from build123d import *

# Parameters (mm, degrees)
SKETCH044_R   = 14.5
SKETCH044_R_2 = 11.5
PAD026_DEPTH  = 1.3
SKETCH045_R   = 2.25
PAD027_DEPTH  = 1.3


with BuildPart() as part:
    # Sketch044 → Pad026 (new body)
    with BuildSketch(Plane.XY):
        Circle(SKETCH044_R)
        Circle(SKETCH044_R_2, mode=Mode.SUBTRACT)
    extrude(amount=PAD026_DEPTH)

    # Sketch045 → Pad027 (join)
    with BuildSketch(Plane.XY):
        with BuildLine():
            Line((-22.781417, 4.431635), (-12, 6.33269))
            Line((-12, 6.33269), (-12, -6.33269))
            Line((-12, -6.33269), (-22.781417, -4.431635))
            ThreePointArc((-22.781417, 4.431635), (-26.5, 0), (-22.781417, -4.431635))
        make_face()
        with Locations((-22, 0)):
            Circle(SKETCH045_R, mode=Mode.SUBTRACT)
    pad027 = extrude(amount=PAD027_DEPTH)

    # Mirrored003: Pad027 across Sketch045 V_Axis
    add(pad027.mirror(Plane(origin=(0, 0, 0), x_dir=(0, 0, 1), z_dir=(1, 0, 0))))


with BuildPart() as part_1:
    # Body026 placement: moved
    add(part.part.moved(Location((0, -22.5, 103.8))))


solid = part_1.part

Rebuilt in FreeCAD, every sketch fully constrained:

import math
import FreeCAD as App
import Part
import Sketcher
from FreeCAD import Vector
Q = App.Units.Quantity

doc = App.newDocument("Part")
params = doc.addObject("Spreadsheet::Sheet", "Params")
for row, (alias, value) in enumerate([
    ("sketch1_diameter", "29 mm"),
    ("sketch1_diameter2", "23 mm"),
    ("pad1_length", "1.3 mm"),
    ("sketch2_diameter", "4.5 mm"),
    ("sketch2_radius", "4.5 mm"),
    ("pad2_length", "1.3 mm"),
], start=1):
    params.set(f"A{row}", alias)
    params.set(f"B{row}", "=" + value)
    params.setAlias(f"B{row}", alias)

body = doc.addObject("PartDesign::Body", "Body")

# Sketch on XY plane
sketch1 = doc.addObject("Sketcher::SketchObject", "Sketch")
body.addObject(sketch1)
sketch1.AttachmentSupport = (doc.XY_Plane, [""])
sketch1.MapMode = "FlatFace"
sketch1.addGeometry(Part.Circle(Vector(0, 0, 0), Vector(0, 0, 1), 14), False)
sketch1.addGeometry(Part.Circle(Vector(0, 0, 0), Vector(0, 0, 1), 12), False)
sketch1.addConstraint(Sketcher.Constraint("Coincident", 0, 3, -1, 1))
sketch1.addConstraint(Sketcher.Constraint("Coincident", 1, 3, -1, 1))
sketch1.addConstraint(Sketcher.Constraint("Diameter", 0, Q("29 mm")))
sketch1.addConstraint(Sketcher.Constraint("Diameter", 1, Q("23 mm")))
sketch1.setExpression("Constraints[2]", "Params.sketch1_diameter")
sketch1.setExpression("Constraints[3]", "Params.sketch1_diameter2")
pad1 = doc.addObject("PartDesign::Pad", "Pad")
body.addObject(pad1)
pad1.Profile = sketch1
pad1.setExpression("Length", "Params.pad1_length")

# Sketch on XY plane
sketch2 = doc.addObject("Sketcher::SketchObject", "Sketch001")
body.addObject(sketch2)
sketch2.AttachmentSupport = (doc.XY_Plane, [""])
sketch2.MapMode = "FlatFace"
sketch2.addGeometry(Part.LineSegment(Vector(-12, 6.3, 0), Vector(-22.8, 4.4, 0)), False)
sketch2.addGeometry(Part.ArcOfCircle(Part.Circle(Vector(-22, 0, 0), Vector(0, 0, 1), 4.5), math.radians(100), math.radians(260)), False)
sketch2.addGeometry(Part.LineSegment(Vector(-22.8, -4.4, 0), Vector(-12, -6.3, 0)), False)
sketch2.addGeometry(Part.LineSegment(Vector(-12, -6.3, 0), Vector(-12, 6.3, 0)), False)
sketch2.addGeometry(Part.Circle(Vector(-22, 0, 0), Vector(0, 0, 1), 2.2), False)
sketch2.addConstraint(Sketcher.Constraint("Tangent", 0, 2, 1, 1))
sketch2.addConstraint(Sketcher.Constraint("Tangent", 1, 2, 2, 1))
sketch2.addConstraint(Sketcher.Constraint("Coincident", 2, 2, 3, 1))
sketch2.addConstraint(Sketcher.Constraint("Coincident", 3, 2, 0, 1))
sketch2.addConstraint(Sketcher.Constraint("Vertical", 3))
sketch2.addConstraint(Sketcher.Constraint("Coincident", 4, 3, 1, 3))
sketch2.addConstraint(Sketcher.Constraint("Symmetric", 0, 2, 1, 2, -1))
sketch2.addConstraint(Sketcher.Constraint("Diameter", 4, Q("4.5 mm")))
sketch2.addConstraint(Sketcher.Constraint("Radius", 1, Q("4.5 mm")))
sketch2.addConstraint(Sketcher.Constraint("Angle", 0, Q("-169.999998 deg")))
sketch2.addConstraint(Sketcher.Constraint("DistanceX", 1, 3, -1, 1, Q("22 mm")))
sketch2.addConstraint(Sketcher.Constraint("DistanceX", 2, 2, -1, 1, Q("12 mm")))
sketch2.setExpression("Constraints[7]", "Params.sketch2_diameter")
sketch2.setExpression("Constraints[8]", "Params.sketch2_radius")
pad2 = doc.addObject("PartDesign::Pad", "Pad001")
body.addObject(pad2)
pad2.Profile = sketch2
pad2.setExpression("Length", "Params.pad2_length")
doc.recompute()

mirrored = doc.addObject("PartDesign::Mirrored", "Mirrored")
body.addObject(mirrored)
mirrored.Originals = [pad2]
mirrored.MirrorPlane = (doc.YZ_Plane, [""])
body.Tip = mirrored
body2 = doc.addObject("PartDesign::Body", "Body001")
doc.recompute()

body.Placement = App.Placement(Vector(0, -22.5, 103.8), App.Rotation(Vector(0, 0, 1), 0))
boolean = doc.addObject("PartDesign::Boolean", "Boolean")
body2.addObject(boolean)
boolean.Type = "Fuse"
boolean.addObjects([body])

doc.recompute()
